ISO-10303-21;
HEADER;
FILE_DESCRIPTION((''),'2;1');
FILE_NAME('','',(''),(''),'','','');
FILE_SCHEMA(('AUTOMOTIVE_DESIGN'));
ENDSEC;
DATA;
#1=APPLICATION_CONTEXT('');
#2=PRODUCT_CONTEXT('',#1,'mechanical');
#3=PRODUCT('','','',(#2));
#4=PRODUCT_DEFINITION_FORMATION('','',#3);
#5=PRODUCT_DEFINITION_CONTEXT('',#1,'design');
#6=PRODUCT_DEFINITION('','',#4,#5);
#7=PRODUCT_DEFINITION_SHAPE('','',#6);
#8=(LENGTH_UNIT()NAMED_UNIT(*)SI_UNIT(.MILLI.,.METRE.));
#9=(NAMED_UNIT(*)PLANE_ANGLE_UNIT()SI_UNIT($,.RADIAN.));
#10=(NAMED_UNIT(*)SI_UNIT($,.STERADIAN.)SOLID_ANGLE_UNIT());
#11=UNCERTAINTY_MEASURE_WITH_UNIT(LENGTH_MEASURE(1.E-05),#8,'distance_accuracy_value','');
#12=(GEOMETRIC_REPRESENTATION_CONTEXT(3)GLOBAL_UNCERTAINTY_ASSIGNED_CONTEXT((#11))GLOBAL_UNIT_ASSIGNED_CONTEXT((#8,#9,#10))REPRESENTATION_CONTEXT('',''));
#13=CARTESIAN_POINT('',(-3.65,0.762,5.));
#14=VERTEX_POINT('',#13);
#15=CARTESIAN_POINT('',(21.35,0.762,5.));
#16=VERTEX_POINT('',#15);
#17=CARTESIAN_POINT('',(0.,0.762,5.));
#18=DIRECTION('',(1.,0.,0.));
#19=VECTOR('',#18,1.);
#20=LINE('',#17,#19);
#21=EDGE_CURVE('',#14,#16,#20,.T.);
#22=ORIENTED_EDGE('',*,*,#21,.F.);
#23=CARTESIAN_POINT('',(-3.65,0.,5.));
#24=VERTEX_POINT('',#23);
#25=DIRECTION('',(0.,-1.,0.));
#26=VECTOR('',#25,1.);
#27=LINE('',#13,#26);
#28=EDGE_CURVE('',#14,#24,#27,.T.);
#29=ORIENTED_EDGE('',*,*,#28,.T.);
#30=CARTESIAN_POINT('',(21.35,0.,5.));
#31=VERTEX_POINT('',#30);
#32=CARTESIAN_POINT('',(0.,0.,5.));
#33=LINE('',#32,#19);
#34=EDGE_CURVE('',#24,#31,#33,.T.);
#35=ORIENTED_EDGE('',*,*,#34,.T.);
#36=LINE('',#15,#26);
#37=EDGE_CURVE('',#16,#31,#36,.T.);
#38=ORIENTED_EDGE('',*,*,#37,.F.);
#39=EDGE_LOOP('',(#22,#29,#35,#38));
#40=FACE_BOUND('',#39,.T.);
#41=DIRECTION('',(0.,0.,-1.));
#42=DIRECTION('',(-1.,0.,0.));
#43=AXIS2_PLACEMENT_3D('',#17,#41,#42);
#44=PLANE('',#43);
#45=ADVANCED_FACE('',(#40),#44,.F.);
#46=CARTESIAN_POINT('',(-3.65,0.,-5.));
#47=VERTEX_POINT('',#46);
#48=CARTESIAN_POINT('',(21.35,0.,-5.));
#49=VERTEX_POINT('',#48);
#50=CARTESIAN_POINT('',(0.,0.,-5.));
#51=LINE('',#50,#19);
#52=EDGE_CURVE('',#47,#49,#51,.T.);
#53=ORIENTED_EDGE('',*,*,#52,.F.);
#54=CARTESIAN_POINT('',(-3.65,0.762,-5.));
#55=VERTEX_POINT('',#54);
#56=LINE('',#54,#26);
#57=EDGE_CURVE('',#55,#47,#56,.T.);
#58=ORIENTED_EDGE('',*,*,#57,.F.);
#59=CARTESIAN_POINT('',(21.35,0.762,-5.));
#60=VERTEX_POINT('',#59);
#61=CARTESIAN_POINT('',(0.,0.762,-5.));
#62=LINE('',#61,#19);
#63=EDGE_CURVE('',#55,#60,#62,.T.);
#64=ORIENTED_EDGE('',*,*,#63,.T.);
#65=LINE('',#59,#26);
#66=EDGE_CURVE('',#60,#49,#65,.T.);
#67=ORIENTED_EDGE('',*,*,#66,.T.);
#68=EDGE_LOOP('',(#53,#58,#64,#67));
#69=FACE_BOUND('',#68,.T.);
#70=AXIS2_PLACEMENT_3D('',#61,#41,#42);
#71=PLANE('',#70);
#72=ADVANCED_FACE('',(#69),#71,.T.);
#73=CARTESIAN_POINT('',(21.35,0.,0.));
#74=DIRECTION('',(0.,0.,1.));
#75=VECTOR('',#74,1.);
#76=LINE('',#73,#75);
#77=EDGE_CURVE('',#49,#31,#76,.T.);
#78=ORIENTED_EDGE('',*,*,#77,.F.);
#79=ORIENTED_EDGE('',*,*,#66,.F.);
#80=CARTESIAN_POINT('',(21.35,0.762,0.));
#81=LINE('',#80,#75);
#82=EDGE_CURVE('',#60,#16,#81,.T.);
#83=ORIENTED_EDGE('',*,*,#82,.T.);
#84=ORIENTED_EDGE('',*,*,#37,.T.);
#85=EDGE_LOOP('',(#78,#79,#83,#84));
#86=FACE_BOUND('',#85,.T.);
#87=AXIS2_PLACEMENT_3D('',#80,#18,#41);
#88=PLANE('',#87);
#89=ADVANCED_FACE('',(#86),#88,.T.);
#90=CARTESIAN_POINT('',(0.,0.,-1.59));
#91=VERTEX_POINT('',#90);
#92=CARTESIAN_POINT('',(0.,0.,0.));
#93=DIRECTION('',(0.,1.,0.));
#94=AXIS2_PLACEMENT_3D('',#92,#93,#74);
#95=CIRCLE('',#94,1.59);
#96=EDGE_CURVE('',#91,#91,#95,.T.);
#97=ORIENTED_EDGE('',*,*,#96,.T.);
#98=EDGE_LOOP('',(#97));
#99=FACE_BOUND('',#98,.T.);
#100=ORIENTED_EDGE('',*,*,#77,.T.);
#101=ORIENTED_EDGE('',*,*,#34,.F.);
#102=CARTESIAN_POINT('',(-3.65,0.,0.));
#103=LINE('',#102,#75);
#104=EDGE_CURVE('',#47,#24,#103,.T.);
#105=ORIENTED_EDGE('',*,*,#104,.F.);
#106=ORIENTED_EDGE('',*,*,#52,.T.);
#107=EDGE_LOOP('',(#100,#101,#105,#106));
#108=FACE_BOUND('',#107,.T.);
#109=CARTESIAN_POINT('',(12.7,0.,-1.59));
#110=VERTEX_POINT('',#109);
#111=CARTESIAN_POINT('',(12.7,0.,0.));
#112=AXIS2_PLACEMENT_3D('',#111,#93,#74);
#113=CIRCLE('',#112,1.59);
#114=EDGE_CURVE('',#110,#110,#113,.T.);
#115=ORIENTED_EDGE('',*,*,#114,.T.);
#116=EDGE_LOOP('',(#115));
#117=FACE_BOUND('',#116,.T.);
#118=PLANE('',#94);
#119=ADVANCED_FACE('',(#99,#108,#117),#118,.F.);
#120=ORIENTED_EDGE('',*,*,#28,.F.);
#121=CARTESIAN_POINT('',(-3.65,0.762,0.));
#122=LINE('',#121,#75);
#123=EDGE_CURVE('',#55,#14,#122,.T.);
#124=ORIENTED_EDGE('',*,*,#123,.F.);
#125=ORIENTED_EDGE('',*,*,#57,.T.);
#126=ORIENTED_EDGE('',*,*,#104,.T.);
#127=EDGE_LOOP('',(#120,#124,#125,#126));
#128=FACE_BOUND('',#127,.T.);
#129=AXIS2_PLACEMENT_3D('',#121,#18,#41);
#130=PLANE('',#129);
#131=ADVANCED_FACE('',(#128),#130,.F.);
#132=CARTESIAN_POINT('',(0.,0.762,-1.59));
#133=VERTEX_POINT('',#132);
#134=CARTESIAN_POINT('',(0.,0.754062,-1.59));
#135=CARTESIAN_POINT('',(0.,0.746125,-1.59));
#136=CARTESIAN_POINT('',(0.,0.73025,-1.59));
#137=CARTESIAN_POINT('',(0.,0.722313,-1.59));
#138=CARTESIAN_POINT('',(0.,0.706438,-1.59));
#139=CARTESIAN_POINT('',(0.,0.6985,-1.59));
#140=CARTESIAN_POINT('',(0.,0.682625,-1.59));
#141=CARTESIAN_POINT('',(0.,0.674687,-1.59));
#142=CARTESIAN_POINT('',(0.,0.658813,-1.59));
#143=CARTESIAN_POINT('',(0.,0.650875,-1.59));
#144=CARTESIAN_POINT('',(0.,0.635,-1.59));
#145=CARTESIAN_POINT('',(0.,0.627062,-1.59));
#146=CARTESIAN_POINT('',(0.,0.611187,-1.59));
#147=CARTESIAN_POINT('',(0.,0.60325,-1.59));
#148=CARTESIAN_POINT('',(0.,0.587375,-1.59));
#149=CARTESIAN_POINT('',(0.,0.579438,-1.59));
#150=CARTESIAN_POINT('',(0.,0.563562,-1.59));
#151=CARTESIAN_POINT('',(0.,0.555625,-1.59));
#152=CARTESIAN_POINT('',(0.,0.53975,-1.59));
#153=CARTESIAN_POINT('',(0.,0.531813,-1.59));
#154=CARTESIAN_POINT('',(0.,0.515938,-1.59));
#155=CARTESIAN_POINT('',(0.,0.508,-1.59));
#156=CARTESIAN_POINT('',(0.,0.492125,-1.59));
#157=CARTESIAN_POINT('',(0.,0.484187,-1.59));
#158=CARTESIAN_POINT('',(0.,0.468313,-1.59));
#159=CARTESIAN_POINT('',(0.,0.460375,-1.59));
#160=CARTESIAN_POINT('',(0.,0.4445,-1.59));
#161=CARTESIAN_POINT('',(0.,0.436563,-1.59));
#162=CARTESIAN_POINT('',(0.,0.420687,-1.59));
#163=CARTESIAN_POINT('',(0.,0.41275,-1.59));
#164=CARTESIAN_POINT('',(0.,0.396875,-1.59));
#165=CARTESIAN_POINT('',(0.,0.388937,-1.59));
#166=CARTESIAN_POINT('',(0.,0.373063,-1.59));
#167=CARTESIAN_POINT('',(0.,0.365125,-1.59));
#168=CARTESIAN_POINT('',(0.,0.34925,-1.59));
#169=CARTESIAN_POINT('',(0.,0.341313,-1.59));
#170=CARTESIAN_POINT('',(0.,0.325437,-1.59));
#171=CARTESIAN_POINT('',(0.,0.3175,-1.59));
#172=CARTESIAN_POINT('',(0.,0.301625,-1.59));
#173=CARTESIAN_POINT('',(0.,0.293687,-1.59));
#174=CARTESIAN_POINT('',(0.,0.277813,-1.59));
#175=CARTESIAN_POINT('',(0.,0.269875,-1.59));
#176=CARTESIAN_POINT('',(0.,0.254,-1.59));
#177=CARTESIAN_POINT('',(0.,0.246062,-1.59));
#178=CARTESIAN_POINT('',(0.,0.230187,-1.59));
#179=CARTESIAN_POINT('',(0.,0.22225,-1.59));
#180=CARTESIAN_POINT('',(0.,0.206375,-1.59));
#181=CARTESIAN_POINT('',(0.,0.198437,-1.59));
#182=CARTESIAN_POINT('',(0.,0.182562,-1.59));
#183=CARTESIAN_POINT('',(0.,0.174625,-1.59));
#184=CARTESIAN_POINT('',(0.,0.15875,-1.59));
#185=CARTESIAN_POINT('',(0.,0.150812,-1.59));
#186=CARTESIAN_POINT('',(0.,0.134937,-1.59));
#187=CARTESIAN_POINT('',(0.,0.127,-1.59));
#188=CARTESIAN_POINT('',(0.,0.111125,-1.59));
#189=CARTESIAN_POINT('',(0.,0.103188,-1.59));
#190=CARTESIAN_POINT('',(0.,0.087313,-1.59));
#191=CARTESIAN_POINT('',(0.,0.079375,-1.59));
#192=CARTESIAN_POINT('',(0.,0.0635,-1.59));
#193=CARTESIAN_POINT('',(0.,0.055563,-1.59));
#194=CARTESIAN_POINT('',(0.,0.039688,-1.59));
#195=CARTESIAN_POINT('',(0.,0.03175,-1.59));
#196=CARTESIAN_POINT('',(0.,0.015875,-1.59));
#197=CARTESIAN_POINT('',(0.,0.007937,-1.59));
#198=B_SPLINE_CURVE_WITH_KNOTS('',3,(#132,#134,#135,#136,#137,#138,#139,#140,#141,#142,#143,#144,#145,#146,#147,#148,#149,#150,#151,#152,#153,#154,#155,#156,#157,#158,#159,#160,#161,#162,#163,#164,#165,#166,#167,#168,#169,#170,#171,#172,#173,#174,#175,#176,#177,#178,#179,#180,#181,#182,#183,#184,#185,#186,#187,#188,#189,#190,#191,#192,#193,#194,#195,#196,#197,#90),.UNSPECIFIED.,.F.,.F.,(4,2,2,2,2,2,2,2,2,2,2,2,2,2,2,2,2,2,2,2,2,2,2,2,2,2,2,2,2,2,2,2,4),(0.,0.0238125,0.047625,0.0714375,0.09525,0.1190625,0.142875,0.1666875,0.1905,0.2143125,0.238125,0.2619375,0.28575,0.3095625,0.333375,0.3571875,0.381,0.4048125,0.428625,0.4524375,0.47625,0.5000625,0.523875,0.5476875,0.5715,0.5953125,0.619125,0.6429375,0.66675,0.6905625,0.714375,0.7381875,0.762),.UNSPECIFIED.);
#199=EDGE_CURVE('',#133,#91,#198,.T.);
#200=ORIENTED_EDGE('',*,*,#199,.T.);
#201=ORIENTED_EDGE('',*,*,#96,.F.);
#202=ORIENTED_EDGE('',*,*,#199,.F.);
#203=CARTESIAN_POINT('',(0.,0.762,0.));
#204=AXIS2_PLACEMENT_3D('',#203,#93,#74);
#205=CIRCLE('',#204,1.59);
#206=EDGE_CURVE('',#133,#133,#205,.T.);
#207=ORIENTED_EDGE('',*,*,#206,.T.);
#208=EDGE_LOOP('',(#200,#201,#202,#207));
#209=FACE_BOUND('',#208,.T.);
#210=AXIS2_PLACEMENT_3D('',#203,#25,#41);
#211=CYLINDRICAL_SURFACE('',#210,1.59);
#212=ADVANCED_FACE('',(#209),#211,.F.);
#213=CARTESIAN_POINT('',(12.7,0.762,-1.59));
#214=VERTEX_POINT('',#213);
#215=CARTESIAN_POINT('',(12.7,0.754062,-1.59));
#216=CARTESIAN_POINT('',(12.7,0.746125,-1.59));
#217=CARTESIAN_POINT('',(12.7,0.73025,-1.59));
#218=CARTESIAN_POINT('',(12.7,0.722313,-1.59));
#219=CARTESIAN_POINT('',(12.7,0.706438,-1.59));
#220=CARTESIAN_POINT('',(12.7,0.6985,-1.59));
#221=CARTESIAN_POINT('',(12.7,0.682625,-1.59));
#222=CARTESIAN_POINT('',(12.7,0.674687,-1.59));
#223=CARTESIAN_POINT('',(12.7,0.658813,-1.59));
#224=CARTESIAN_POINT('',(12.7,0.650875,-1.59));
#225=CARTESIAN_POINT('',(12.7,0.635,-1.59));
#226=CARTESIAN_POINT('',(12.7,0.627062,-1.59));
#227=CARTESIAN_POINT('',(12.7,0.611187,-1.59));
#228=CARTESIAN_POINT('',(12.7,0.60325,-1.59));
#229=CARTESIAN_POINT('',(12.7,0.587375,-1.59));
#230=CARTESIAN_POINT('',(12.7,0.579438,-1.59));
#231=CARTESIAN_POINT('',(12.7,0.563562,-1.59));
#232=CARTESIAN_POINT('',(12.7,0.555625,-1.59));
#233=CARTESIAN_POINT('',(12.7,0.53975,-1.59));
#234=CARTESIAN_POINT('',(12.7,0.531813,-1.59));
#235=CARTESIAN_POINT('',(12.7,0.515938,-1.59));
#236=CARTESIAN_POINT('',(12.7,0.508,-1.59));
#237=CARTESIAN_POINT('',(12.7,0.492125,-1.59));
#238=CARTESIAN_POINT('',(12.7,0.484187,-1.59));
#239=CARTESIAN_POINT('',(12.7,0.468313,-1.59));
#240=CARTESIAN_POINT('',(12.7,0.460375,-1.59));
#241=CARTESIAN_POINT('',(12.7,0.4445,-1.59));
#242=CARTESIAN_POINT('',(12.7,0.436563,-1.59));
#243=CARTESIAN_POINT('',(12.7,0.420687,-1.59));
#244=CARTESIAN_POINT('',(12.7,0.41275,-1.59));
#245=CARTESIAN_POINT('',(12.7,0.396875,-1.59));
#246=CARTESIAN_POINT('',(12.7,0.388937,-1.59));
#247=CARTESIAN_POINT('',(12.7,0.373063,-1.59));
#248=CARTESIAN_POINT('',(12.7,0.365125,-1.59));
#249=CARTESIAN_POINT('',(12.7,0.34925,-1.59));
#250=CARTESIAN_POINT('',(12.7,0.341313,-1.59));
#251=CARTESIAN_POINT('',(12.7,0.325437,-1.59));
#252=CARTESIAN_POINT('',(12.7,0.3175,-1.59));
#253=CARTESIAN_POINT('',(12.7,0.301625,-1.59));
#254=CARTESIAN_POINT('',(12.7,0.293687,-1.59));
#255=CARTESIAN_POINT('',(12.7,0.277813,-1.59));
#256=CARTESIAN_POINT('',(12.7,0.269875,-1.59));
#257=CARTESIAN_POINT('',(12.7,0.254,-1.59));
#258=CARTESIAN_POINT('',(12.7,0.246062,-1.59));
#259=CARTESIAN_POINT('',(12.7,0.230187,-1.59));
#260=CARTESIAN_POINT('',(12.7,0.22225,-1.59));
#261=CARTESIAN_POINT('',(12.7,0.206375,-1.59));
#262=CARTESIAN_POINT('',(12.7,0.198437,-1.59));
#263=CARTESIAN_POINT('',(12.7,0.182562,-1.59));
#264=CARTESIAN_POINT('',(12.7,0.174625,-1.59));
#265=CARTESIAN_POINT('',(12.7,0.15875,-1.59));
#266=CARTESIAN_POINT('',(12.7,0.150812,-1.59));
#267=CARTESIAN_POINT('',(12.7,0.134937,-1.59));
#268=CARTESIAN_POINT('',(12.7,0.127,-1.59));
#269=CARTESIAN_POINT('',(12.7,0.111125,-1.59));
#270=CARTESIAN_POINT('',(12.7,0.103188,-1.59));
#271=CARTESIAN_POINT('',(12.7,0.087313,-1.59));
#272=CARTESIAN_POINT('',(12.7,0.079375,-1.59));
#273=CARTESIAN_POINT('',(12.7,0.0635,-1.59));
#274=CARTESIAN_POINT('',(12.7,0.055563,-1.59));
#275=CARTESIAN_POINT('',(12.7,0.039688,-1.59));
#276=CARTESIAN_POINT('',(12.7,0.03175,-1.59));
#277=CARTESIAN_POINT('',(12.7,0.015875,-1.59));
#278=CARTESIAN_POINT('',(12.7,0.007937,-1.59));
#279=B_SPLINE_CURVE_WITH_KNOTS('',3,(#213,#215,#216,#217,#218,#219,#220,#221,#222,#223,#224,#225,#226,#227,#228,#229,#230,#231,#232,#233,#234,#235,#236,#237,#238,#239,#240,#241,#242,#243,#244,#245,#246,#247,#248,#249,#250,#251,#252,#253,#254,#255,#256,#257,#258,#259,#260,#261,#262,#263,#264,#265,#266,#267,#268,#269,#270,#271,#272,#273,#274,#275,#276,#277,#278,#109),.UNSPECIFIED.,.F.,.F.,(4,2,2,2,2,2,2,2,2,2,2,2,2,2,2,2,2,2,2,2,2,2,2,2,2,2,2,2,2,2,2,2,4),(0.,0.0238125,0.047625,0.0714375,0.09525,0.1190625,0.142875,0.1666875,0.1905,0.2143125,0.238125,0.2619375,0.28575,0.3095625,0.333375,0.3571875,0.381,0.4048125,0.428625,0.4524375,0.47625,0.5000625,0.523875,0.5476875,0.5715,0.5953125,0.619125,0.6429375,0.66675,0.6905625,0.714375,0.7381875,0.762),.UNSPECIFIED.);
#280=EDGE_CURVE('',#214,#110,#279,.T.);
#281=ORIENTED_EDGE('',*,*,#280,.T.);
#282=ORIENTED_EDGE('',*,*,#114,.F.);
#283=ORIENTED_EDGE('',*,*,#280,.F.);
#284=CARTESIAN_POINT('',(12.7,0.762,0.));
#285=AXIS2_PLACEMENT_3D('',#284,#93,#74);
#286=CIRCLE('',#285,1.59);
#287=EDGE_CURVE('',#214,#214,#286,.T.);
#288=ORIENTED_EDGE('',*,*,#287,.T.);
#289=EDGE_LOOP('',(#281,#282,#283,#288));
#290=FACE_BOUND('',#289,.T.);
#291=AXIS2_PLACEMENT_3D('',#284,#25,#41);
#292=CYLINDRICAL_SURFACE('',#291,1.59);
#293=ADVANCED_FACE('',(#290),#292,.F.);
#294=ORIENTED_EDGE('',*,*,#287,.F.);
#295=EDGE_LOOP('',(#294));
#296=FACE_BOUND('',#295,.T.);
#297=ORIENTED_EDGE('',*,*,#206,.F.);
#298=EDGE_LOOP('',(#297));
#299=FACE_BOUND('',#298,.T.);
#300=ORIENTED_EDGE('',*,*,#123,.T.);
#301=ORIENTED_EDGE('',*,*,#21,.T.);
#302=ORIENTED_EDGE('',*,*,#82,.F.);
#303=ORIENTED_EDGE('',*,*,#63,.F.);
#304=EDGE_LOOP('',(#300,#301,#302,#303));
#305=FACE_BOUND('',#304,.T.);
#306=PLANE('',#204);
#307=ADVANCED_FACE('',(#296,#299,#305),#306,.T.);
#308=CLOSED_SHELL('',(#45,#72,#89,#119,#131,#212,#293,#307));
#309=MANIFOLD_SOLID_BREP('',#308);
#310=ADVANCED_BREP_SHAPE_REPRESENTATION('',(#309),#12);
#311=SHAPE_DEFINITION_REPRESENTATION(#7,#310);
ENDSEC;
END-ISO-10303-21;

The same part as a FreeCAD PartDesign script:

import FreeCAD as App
import Part
import Sketcher
from FreeCAD import Vector
Q = App.Units.Quantity


def add_polygon(sketch, points):
    """Adds a closed chain of lines whose ends are joined by coincident constraints."""
    first, n = sketch.GeometryCount, len(points)
    for a, b in zip(points, points[1:] + points[:1]):
        sketch.addGeometry(Part.LineSegment(App.Vector(*a, 0), App.Vector(*b, 0)), False)
    for i in range(n):
        sketch.addConstraint(Sketcher.Constraint("Coincident", first + i, 2, first + (i + 1) % n, 1))

doc = App.newDocument("Part")
body = doc.addObject("PartDesign::Body", "Body")

# Sketch on XZ plane
sketch1 = doc.addObject("Sketcher::SketchObject", "Sketch")
body.addObject(sketch1)
sketch1.AttachmentSupport = (doc.XZ_Plane, [""])
sketch1.MapMode = "FlatFace"
add_polygon(sketch1, [(-3.6, -5), (-3.6, 5), (21.4, 5), (21.4, -5)])  # lines 0-3
sketch1.addGeometry(Part.Circle(Vector(0, 0, 0), Vector(0, 0, 1), 1.6), False)  # 4
sketch1.addGeometry(Part.Circle(Vector(12.7, 0, 0), Vector(0, 0, 1), 1.6), False)  # 5
sketch1.addConstraint(Sketcher.Constraint("Vertical", 0))
sketch1.addConstraint(Sketcher.Constraint("Horizontal", 1))
sketch1.addConstraint(Sketcher.Constraint("Vertical", 2))
sketch1.addConstraint(Sketcher.Constraint("Horizontal", 3))
sketch1.addConstraint(Sketcher.Constraint("Coincident", 4, 3, -1, 1))
sketch1.addConstraint(Sketcher.Constraint("Equal", 4, 5))
sketch1.addConstraint(Sketcher.Constraint("PointOnObject", 5, 3, -1))
sketch1.addConstraint(Sketcher.Constraint("Diameter", 4, Q("3.18 mm")))
sketch1.addConstraint(Sketcher.Constraint("DistanceX", 1, 1, 1, 2, Q("25 mm")))
sketch1.addConstraint(Sketcher.Constraint("DistanceY", 0, 1, 0, 2, Q("10 mm")))
sketch1.addConstraint(Sketcher.Constraint("DistanceY", -1, 1, 0, 2, Q("5 mm")))
sketch1.addConstraint(Sketcher.Constraint("DistanceX", -1, 1, 5, 3, Q("12.7 mm")))
sketch1.addConstraint(Sketcher.Constraint("DistanceX", 0, 2, -1, 1, Q("3.65 mm")))
pad1 = doc.addObject("PartDesign::Pad", "Pad")
body.addObject(pad1)
pad1.Profile = sketch1
pad1.Length = 0.762
pad1.Reversed = True

doc.recompute()
